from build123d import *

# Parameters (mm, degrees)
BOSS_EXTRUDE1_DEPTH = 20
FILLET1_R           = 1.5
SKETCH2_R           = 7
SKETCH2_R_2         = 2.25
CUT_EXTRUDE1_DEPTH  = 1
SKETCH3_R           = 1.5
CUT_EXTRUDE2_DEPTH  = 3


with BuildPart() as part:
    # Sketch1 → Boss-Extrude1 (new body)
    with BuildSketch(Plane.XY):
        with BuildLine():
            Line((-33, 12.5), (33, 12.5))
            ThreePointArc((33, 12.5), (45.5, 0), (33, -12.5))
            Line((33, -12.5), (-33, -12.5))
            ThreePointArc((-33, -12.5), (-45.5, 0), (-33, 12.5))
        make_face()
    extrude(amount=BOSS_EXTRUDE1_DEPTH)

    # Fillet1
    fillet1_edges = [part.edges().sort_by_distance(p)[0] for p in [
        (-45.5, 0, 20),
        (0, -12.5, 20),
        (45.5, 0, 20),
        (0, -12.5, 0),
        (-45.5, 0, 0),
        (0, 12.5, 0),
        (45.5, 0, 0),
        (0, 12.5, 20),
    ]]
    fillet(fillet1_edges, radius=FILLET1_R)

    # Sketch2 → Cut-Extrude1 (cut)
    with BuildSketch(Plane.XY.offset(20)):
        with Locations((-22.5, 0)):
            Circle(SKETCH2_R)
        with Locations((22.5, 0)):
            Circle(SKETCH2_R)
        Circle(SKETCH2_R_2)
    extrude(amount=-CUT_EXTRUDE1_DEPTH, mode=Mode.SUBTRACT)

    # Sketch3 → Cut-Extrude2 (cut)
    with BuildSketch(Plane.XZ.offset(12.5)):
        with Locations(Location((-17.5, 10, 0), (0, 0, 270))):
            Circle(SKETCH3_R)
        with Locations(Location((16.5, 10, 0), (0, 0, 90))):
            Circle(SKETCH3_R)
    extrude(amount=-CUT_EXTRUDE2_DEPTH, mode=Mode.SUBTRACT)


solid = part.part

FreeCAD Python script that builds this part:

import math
import FreeCAD as App
import Part
import Sketcher


def edges_at(feature, points):
    """Names of the edges that pass closest to the given points."""
    edges = feature.Shape.Edges
    near = lambda p: min(range(len(edges)), key=lambda i: edges[i].distToShape(Part.Vertex(*p))[0])
    return sorted({f"Edge{near(p) + 1}" for p in points})

doc = App.newDocument("Part")
params = doc.addObject("Spreadsheet::Sheet", "Params")
for row, (alias, value) in enumerate([
    ("sketch1_radius", "12.5 mm"),
    ("sketch1_width", "66 mm"),
    ("pad1_length", "20 mm"),
    ("fillet_radius", "1.5 mm"),
    ("sketch2_diameter", "14 mm"),
    ("sketch2_diameter2", "4.5 mm"),
    ("pocket1_length", "1 mm"),
    ("sketch3_diameter", "3 mm"),
    ("pocket2_length", "3 mm"),
], start=1):
    params.set(f"A{row}", alias)
    params.set(f"B{row}", "=" + value)
    params.setAlias(f"B{row}", alias)

body = doc.addObject("PartDesign::Body", "Body")

sketch1 = doc.addObject("Sketcher::SketchObject", "Sketch")
body.addObject(sketch1)
sketch1.AttachmentSupport = (doc.XY_Plane, [""])
sketch1.MapMode = "FlatFace"
sketch1.addGeometry([
    Part.LineSegment(App.Vector(33, 12, 0), App.Vector(-33, 12, 0)),
    Part.ArcOfCircle(Part.Circle(App.Vector(-33, 0, 0), App.Vector(0, 0, 1), 12), math.radians(90), math.radians(270)),
    Part.LineSegment(App.Vector(-33, -12, 0), App.Vector(33, -12, 0)),
    Part.ArcOfCircle(Part.Circle(App.Vector(33, 0, 0), App.Vector(0, 0, 1), 12), math.radians(-90), math.radians(90)),
], False)
sketch1.addConstraint([
    Sketcher.Constraint("Tangent", 0, 2, 1, 1),
    Sketcher.Constraint("Tangent", 1, 2, 2, 1),
    Sketcher.Constraint("Tangent", 2, 2, 3, 1),
    Sketcher.Constraint("Tangent", 3, 2, 0, 1),
    Sketcher.Constraint("Horizontal", 0),
    Sketcher.Constraint("Horizontal", 2),
    Sketcher.Constraint("Symmetric", 1, 3, 3, 3, -1, 1),
    Sketcher.Constraint("Radius", 1, 12.5),
    Sketcher.Constraint("DistanceX", 0, 2, 0, 1, 66.0),
])
sketch1.setExpression("Constraints[7]", "Params.sketch1_radius")
sketch1.setExpression("Constraints[8]", "Params.sketch1_width")
pad1 = doc.addObject("PartDesign::Pad", "Pad")
body.addObject(pad1)
pad1.Profile = sketch1
pad1.setExpression("Length", "Params.pad1_length")
doc.recompute()

fillet = doc.addObject("PartDesign::Fillet", "Fillet")
body.addObject(fillet)
fillet.Base = (pad1, edges_at(pad1, [
    (-45.5, 0, 20),
    (0, -12.5, 20),
    (45.5, 0, 20),
    (0, -12.5, 0),
    (-45.5, 0, 0),
    (0, 12.5, 0),
    (45.5, 0, 0),
    (0, 12.5, 20),
]))
fillet.setExpression("Radius", "Params.fillet_radius")

sketch2 = doc.addObject("Sketcher::SketchObject", "Sketch001")
body.addObject(sketch2)
sketch2.AttachmentSupport = (doc.XY_Plane, [""])
sketch2.MapMode = "FlatFace"
sketch2.AttachmentOffset = App.Placement(App.Vector(0, 0, 20), App.Rotation())
sketch2.addGeometry([
    Part.Circle(App.Vector(-22.5, 0, 0), App.Vector(0, 0, 1), 7),
    Part.Circle(App.Vector(22.5, 0, 0), App.Vector(0, 0, 1), 7),
    Part.Circle(App.Vector(0, 0, 0), App.Vector(0, 0, 1), 2.2),
], False)
sketch2.addConstraint([
    Sketcher.Constraint("Coincident", 2, 3, -1, 1),
    Sketcher.Constraint("Equal", 0, 1),
    Sketcher.Constraint("Symmetric", 0, 3, 1, 3, -1, 1),
    Sketcher.Constraint("PointOnObject", 0, 3, -1),
    Sketcher.Constraint("Diameter", 0, 14.0),
    Sketcher.Constraint("Diameter", 2, 4.5),
    Sketcher.Constraint("DistanceX", 0, 3, 1, 3, 45.0),
])
sketch2.setExpression("Constraints[4]", "Params.sketch2_diameter")
sketch2.setExpression("Constraints[5]", "Params.sketch2_diameter2")
pocket1 = doc.addObject("PartDesign::Pocket", "Pocket")
body.addObject(pocket1)
pocket1.Profile = sketch2
pocket1.setExpression("Length", "Params.pocket1_length")

sketch3 = doc.addObject("Sketcher::SketchObject", "Sketch002")
body.addObject(sketch3)
sketch3.AttachmentSupport = (doc.XZ_Plane, [""])
sketch3.MapMode = "FlatFace"
sketch3.AttachmentOffset = App.Placement(App.Vector(0, 0, 12.5), App.Rotation())
sketch3.addGeometry([
    Part.Circle(App.Vector(-17.5, 10, 0), App.Vector(0, 0, 1), 1.5),
    Part.Circle(App.Vector(16.5, 10, 0), App.Vector(0, 0, 1), 1.5),
], False)
sketch3.addConstraint([
    Sketcher.Constraint("Equal", 0, 1),
    Sketcher.Constraint("Horizontal", 0, 3, 1, 3),
    Sketcher.Constraint("Diameter", 0, 3.0),
    Sketcher.Constraint("DistanceY", -1, 1, 0, 3, 10.0),
    Sketcher.Constraint("DistanceX", 0, 3, 1, 3, 34.0),
    Sketcher.Constraint("DistanceX", 0, 3, -1, 1, 17.5),
])
sketch3.setExpression("Constraints[2]", "Params.sketch3_diameter")
pocket2 = doc.addObject("PartDesign::Pocket", "Pocket001")
body.addObject(pocket2)
pocket2.Profile = sketch3
pocket2.setExpression("Length", "Params.pocket2_length")

doc.recompute()
